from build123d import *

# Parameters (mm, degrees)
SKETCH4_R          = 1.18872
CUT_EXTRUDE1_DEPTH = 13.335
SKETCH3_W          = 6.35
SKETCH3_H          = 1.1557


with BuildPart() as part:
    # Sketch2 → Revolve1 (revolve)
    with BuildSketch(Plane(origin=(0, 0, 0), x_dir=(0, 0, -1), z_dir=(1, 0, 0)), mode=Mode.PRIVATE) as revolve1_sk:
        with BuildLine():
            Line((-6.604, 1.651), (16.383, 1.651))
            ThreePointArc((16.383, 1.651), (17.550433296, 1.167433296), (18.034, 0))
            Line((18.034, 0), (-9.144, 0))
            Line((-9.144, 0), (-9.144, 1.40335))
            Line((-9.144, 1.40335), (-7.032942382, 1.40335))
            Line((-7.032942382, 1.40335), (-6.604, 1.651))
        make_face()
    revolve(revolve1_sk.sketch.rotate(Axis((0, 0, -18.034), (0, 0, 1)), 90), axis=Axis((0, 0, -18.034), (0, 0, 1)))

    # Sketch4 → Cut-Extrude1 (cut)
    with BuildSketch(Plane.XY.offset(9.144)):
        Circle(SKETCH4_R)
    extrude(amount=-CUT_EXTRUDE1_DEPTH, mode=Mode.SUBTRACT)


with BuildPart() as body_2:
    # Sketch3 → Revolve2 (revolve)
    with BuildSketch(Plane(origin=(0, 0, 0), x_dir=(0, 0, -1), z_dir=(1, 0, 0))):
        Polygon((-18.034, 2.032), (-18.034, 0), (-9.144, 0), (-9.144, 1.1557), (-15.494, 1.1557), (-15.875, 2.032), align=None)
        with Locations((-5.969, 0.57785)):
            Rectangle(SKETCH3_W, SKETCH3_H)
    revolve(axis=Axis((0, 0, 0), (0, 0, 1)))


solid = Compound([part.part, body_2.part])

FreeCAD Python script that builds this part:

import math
import FreeCAD as App
import Part
import Sketcher

V = App.Vector
Q = App.Units.Quantity


def add_polygon(sketch, points):
    """Adds a closed chain of lines whose ends are joined by coincident constraints."""
    first, n = sketch.GeometryCount, len(points)
    for a, b in zip(points, points[1:] + points[:1]):
        sketch.addGeometry(Part.LineSegment(App.Vector(*a, 0), App.Vector(*b, 0)), False)
    for i in range(n):
        sketch.addConstraint(Sketcher.Constraint("Coincident", first + i, 2, first + (i + 1) % n, 1))

doc = App.newDocument("Part")
params = doc.addObject("Spreadsheet::Sheet", "Params")
for row, (alias, value) in enumerate([
    ("sketch1_radius", "0.065 in"),
    ("sketch1_height", "1.07 in"),
    ("revolution_angle", "360 deg"),
    ("pocket1_length", "0.525 in"),
    ("sketch3_height", "0.6 in"),
    ("sketch3_height2", "0.5 in"),
    ("sketch3_width", "0.08 in"),
    ("sketch3_height3", "0.085 in"),
    ("revolution2_angle", "360 deg"),
], start=1):
    params.set(f"A{row}", alias)
    params.set(f"B{row}", "=" + value)
    params.setAlias(f"B{row}", alias)

body = doc.addObject("PartDesign::Body", "Body")

sketch1 = body.newObject("Sketcher::SketchObject", "Sketch")
sketch1.AttachmentSupport = (doc.getObject("YZ_Plane"), [""])
sketch1.MapMode = "FlatFace"
sketch1.addGeometry([
    Part.LineSegment(V(1.65, -16.38, 0), V(1.65, 6.6, 0)),
    Part.LineSegment(V(1.65, 6.6, 0), V(1.4, 7.03, 0)),
    Part.LineSegment(V(1.4, 7.03, 0), V(1.4, 9.14, 0)),
    Part.LineSegment(V(1.4, 9.14, 0), V(0, 9.14, 0)),
    Part.LineSegment(V(0, 9.14, 0), V(0, -18.03, 0)),
    Part.ArcOfCircle(Part.Circle(V(0, -16.38, 0), V(0, 0, 1), 1.65), math.radians(-90), math.radians(0)),
], False)
sketch1.addConstraint([
    Sketcher.Constraint("Coincident", 0, 2, 1, 1),
    Sketcher.Constraint("Coincident", 1, 2, 2, 1),
    Sketcher.Constraint("Coincident", 2, 2, 3, 1),
    Sketcher.Constraint("Coincident", 3, 2, 4, 1),
    Sketcher.Constraint("Coincident", 4, 2, 5, 1),
    Sketcher.Constraint("Tangent", 5, 2, 0, 1),
    Sketcher.Constraint("Vertical", 0),
    Sketcher.Constraint("Vertical", 2),
    Sketcher.Constraint("Horizontal", 3),
    Sketcher.Constraint("Vertical", 4),
    Sketcher.Constraint("PointOnObject", 5, 3, -2),
    Sketcher.Constraint("PointOnObject", 3, 2, -2),
    Sketcher.Constraint("Angle", 1, Q("120 deg")),
    Sketcher.Constraint("Radius", 5, Q("0.065 in")),
    Sketcher.Constraint("DistanceY", 4, 2, 4, 1, Q("1.07 in")),
    Sketcher.Constraint("DistanceY", 0, 2, 2, 2, Q("0.1 in")),
    Sketcher.Constraint("DistanceY", -1, 1, 0, 2, Q("0.26 in")),
    Sketcher.Constraint("Distance", 1, Q("0.0195 in")),
])
sketch1.setExpression("Constraints[13]", "Params.sketch1_radius")
sketch1.setExpression("Constraints[14]", "Params.sketch1_height")
revolution = body.newObject("PartDesign::Revolution", "Revolution")
revolution.Profile = sketch1
revolution.ReferenceAxis = (sketch1, ["V_Axis"])
revolution.setExpression("Angle", "Params.revolution_angle")

sketch2 = body.newObject("Sketcher::SketchObject", "Sketch001")
sketch2.AttachmentSupport = (doc.getObject("XY_Plane"), [""])
sketch2.MapMode = "FlatFace"
sketch2.AttachmentOffset = App.Placement(V(0, 0, 0.36 * 25.4), App.Rotation())
sketch2.addGeometry(Part.Circle(V(0, 0, 0), V(0, 0, 1), 1.2), False)
sketch2.addConstraint([
    Sketcher.Constraint("Coincident", 0, 3, -1, 1),
    Sketcher.Constraint("Diameter", 0, Q("0.0936 in")),
])
pocket1 = body.newObject("PartDesign::Pocket", "Pocket")
pocket1.Profile = sketch2
pocket1.setExpression("Length", "Params.pocket1_length")
body2 = doc.addObject("PartDesign::Body", "Body001")

sketch3 = body2.newObject("Sketcher::SketchObject", "Sketch002")
sketch3.AttachmentSupport = (doc.getObject("YZ_Plane001"), [""])
sketch3.MapMode = "FlatFace"
add_polygon(sketch3, [(2, 18), (0, 18), (0, 2.8), (1.2, 2.8), (1.2, 15.5), (2, 15.9)])
sketch3.addConstraint([
    Sketcher.Constraint("Horizontal", 0),
    Sketcher.Constraint("Vertical", 1),
    Sketcher.Constraint("Horizontal", 2),
    Sketcher.Constraint("Vertical", 3),
    Sketcher.Constraint("Vertical", 5),
    Sketcher.Constraint("PointOnObject", 0, 2, -2),
    Sketcher.Constraint("DistanceY", 1, 2, 1, 1, Q("0.6 in")),
    Sketcher.Constraint("DistanceY", 3, 1, 3, 2, Q("0.5 in")),
    Sketcher.Constraint("DistanceX", 0, 2, 0, 1, Q("0.08 in")),
    Sketcher.Constraint("DistanceY", 5, 1, 5, 2, Q("0.085 in")),
    Sketcher.Constraint("DistanceY", -1, 1, 0, 2, Q("0.71 in")),
    Sketcher.Constraint("DistanceX", 2, 1, 2, 2, Q("0.0455 in")),
])
sketch3.setExpression("Constraints[12]", "Params.sketch3_height")
sketch3.setExpression("Constraints[13]", "Params.sketch3_height2")
sketch3.setExpression("Constraints[14]", "Params.sketch3_width")
sketch3.setExpression("Constraints[15]", "Params.sketch3_height3")
revolution2 = body2.newObject("PartDesign::Revolution", "Revolution001")
revolution2.Profile = sketch3
revolution2.ReferenceAxis = (sketch3, ["V_Axis"])
revolution2.setExpression("Angle", "Params.revolution2_angle")

doc.recompute()
